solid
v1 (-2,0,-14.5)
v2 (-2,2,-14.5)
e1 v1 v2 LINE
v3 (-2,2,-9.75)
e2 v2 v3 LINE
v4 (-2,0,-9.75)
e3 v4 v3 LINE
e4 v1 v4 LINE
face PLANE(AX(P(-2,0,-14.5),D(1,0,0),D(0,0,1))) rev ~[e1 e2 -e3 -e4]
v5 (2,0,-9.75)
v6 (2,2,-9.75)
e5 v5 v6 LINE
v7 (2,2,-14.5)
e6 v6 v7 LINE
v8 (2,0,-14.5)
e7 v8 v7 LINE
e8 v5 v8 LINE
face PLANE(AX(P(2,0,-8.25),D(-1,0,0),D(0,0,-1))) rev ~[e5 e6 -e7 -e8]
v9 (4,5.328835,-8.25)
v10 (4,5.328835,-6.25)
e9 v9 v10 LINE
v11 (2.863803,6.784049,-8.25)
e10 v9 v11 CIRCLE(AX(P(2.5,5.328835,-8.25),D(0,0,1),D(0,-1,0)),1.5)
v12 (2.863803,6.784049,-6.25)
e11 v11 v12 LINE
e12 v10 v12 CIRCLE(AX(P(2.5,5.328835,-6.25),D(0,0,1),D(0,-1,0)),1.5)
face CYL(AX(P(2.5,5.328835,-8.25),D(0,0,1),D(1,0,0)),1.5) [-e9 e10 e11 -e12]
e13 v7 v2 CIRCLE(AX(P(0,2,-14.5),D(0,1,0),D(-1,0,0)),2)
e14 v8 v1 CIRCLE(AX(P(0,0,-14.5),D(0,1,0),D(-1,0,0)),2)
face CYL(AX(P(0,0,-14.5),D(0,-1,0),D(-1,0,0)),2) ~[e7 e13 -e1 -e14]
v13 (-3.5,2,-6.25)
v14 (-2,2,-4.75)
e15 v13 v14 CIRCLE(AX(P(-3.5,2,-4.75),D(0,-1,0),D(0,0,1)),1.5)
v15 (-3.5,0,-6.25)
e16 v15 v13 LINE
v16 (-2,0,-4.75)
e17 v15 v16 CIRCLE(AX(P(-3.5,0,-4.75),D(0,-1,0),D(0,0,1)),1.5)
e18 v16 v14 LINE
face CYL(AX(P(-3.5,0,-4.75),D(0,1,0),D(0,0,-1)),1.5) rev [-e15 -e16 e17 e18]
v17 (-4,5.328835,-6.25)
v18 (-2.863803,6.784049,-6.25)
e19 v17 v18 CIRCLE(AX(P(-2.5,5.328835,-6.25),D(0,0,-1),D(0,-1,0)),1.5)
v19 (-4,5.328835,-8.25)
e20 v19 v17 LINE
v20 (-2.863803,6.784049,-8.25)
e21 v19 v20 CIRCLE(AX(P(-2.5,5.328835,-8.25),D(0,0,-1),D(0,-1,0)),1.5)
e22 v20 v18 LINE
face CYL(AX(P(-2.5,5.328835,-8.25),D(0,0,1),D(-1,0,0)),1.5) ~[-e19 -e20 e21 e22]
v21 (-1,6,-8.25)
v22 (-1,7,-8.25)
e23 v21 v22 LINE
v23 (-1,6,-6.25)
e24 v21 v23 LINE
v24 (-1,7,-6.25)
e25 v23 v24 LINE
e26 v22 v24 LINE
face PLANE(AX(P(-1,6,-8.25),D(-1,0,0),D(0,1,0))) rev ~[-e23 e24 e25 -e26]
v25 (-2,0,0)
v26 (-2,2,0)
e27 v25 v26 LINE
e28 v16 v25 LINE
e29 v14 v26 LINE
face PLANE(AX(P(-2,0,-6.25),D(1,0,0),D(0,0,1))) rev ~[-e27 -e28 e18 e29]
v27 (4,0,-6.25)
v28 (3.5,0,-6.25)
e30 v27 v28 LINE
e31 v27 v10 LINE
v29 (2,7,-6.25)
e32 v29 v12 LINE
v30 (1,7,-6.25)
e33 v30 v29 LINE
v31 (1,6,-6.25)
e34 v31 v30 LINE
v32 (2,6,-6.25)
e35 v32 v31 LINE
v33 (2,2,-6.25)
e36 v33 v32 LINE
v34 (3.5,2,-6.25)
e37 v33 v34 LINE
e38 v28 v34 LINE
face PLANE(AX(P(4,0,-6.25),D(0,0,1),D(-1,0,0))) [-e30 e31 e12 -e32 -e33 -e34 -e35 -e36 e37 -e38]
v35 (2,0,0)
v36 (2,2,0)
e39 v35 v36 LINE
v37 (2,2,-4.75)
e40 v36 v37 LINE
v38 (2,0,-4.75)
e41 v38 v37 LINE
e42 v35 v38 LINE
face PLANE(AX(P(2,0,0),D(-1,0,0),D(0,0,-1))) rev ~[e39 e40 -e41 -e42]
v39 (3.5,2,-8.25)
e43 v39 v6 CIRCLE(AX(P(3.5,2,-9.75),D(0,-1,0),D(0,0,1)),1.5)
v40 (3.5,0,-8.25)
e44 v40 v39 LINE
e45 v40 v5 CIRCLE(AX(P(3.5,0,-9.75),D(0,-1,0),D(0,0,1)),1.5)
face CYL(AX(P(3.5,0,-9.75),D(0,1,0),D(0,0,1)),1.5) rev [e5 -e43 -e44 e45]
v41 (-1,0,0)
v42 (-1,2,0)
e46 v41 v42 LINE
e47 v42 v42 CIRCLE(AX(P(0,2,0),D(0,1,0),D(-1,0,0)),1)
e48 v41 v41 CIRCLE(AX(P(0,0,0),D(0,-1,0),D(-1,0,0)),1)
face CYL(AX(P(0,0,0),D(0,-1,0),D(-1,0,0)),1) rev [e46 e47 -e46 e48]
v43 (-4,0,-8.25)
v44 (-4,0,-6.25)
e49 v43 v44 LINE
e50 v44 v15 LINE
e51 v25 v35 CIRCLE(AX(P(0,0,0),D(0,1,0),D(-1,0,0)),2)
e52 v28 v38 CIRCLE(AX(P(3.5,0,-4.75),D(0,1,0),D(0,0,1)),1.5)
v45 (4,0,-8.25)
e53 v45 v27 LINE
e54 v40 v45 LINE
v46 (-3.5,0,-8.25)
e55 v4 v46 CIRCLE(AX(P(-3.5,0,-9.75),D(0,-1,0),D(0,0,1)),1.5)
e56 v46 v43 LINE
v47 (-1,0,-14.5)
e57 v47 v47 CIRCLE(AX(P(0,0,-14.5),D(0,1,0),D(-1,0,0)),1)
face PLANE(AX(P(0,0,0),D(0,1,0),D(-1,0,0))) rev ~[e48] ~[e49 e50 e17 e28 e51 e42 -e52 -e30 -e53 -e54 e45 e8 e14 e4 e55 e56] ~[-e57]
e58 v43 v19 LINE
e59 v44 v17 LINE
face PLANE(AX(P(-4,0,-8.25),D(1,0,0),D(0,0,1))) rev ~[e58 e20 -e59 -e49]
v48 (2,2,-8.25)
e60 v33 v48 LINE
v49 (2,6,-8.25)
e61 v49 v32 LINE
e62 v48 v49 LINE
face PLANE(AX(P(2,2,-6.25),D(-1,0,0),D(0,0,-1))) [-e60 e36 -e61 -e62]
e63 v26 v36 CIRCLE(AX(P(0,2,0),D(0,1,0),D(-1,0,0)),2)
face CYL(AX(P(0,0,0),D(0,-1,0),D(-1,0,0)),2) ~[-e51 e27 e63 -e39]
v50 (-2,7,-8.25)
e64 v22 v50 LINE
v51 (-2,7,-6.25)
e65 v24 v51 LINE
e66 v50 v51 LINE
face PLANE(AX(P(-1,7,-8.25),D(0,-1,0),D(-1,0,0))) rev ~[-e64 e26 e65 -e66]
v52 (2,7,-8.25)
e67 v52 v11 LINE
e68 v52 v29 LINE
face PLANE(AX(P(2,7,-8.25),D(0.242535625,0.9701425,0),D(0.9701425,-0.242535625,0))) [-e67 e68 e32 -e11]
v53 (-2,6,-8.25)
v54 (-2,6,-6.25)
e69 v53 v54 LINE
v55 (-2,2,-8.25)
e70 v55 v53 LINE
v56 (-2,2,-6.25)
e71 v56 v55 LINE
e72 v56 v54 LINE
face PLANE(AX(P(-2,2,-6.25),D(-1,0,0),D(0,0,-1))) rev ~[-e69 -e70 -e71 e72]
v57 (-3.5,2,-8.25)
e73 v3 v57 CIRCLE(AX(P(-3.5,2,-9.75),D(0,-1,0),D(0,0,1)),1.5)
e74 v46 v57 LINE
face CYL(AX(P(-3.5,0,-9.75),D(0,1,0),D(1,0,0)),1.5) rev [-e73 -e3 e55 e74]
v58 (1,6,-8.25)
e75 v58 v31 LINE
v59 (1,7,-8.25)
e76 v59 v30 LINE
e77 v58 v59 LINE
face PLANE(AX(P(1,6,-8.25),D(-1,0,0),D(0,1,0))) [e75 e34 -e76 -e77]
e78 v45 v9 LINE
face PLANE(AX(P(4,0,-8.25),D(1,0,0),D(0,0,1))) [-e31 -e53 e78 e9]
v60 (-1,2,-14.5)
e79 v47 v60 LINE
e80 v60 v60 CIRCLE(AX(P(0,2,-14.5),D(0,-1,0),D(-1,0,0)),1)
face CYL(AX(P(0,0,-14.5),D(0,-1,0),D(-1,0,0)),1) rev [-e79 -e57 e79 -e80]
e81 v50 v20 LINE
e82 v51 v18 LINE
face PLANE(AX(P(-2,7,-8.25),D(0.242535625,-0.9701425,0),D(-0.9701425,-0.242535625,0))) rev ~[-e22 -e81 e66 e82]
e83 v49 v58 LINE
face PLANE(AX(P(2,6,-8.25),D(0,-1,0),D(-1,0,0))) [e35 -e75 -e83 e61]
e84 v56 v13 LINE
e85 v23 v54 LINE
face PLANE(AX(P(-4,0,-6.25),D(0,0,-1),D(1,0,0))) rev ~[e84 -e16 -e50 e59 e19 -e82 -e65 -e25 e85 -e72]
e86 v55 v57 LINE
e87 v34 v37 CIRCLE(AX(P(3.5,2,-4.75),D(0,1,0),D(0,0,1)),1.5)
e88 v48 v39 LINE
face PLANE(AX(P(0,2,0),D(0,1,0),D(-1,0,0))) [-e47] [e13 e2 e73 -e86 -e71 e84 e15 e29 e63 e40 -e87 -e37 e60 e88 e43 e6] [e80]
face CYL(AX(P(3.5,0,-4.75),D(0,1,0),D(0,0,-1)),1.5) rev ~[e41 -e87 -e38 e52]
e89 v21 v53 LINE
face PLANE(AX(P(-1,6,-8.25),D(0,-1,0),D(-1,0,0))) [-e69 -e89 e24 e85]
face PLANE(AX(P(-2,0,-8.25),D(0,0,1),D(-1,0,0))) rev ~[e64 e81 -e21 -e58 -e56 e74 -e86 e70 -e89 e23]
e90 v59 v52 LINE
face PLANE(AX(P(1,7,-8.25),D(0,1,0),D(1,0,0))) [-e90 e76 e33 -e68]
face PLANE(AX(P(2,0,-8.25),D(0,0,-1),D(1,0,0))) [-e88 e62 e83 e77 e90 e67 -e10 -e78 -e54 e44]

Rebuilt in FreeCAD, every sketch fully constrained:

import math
import FreeCAD as App
import Part
import Sketcher

V = App.Vector


def edges_at(feature, points):
    """Names of the edges that pass closest to the given points."""
    edges = feature.Shape.Edges
    near = lambda p: min(range(len(edges)), key=lambda i: edges[i].distToShape(Part.Vertex(*p))[0])
    return sorted({f"Edge{near(p) + 1}" for p in points})

doc = App.newDocument("Part")
body = doc.addObject("PartDesign::Body", "Body")

sketch1 = body.newObject("Sketcher::SketchObject", "Sketch")
sketch1.AttachmentSupport = (doc.getObject("XZ_Plane"), [""])
sketch1.MapMode = "FlatFace"
sketch1.addGeometry(Part.ArcOfCircle(Part.Circle(V(0, 0, 0), V(0, 0, 1), 2), math.radians(0), math.radians(180)), False)
sketch1.addGeometry(Part.LineSegment(V(2, 0, 0), V(2, -6.25, 0)), False)
sketch1.addGeometry(Part.LineSegment(V(2, -6.25, 0), V(4, -6.25, 0)), False)
sketch1.addGeometry(Part.LineSegment(V(4, -6.25, 0), V(4, -8.25, 0)), False)
sketch1.addGeometry(Part.LineSegment(V(4, -8.25, 0), V(2, -8.25, 0)), False)
sketch1.addGeometry(Part.LineSegment(V(2, -8.25, 0), V(2, -14.5, 0)), False)
sketch1.addGeometry(Part.ArcOfCircle(Part.Circle(V(0, -14.5, 0), V(0, 0, 1), 2), math.radians(180), math.radians(360)), False)
sketch1.addGeometry(Part.LineSegment(V(-2, -14.5, 0), V(-2, -8.25, 0)), False)
sketch1.addGeometry(Part.LineSegment(V(-2, -8.25, 0), V(-4, -8.25, 0)), False)
sketch1.addGeometry(Part.LineSegment(V(-4, -8.25, 0), V(-4, -6.25, 0)), False)
sketch1.addGeometry(Part.LineSegment(V(-4, -6.25, 0), V(-2, -6.25, 0)), False)
sketch1.addGeometry(Part.LineSegment(V(-2, -6.25, 0), V(-2, 0, 0)), False)
sketch1.addGeometry(Part.Circle(V(0, 0, 0), V(0, 0, 1), 1), False)
sketch1.addGeometry(Part.Circle(V(0, -14.5, 0), V(0, 0, 1), 1), False)
sketch1.addConstraint(Sketcher.Constraint("Tangent", 0, 1, 1, 1))
sketch1.addConstraint(Sketcher.Constraint("Coincident", 1, 2, 2, 1))
sketch1.addConstraint(Sketcher.Constraint("Coincident", 2, 2, 3, 1))
sketch1.addConstraint(Sketcher.Constraint("Coincident", 3, 2, 4, 1))
sketch1.addConstraint(Sketcher.Constraint("Coincident", 4, 2, 5, 1))
sketch1.addConstraint(Sketcher.Constraint("Tangent", 5, 2, 6, 2))
sketch1.addConstraint(Sketcher.Constraint("Tangent", 6, 1, 7, 1))
sketch1.addConstraint(Sketcher.Constraint("Coincident", 7, 2, 8, 1))
sketch1.addConstraint(Sketcher.Constraint("Coincident", 8, 2, 9, 1))
sketch1.addConstraint(Sketcher.Constraint("Coincident", 9, 2, 10, 1))
sketch1.addConstraint(Sketcher.Constraint("Coincident", 10, 2, 11, 1))
sketch1.addConstraint(Sketcher.Constraint("Tangent", 11, 2, 0, 2))
sketch1.addConstraint(Sketcher.Constraint("Vertical", 1))
sketch1.addConstraint(Sketcher.Constraint("Horizontal", 2))
sketch1.addConstraint(Sketcher.Constraint("Vertical", 3))
sketch1.addConstraint(Sketcher.Constraint("Horizontal", 4))
sketch1.addConstraint(Sketcher.Constraint("Vertical", 5))
sketch1.addConstraint(Sketcher.Constraint("Vertical", 7))
sketch1.addConstraint(Sketcher.Constraint("Horizontal", 8))
sketch1.addConstraint(Sketcher.Constraint("Vertical", 9))
sketch1.addConstraint(Sketcher.Constraint("Horizontal", 10))
sketch1.addConstraint(Sketcher.Constraint("Vertical", 11))
sketch1.addConstraint(Sketcher.Constraint("Coincident", 0, 3, -1, 1))
sketch1.addConstraint(Sketcher.Constraint("Coincident", 12, 3, -1, 1))
sketch1.addConstraint(Sketcher.Constraint("Coincident", 13, 3, 6, 3))
sketch1.addConstraint(Sketcher.Constraint("Equal", 0, 6))
sketch1.addConstraint(Sketcher.Constraint("Equal", 12, 13))
sketch1.addConstraint(Sketcher.Constraint("Symmetric", 4, 2, 7, 2, -2))
sketch1.addConstraint(Sketcher.Constraint("Symmetric", 2, 2, 9, 2, -2))
sketch1.addConstraint(Sketcher.Constraint("Equal", 10, 3))
sketch1.addConstraint(Sketcher.Constraint("Equal", 1, 5))
sketch1.addConstraint(Sketcher.Constraint("Diameter", 12, 2.0))
sketch1.addConstraint(Sketcher.Constraint("Radius", 0, 2.0))
sketch1.addConstraint(Sketcher.Constraint("DistanceX", 2, 1, 2, 2, 2.0))
sketch1.addConstraint(Sketcher.Constraint("DistanceY", 6, 3, -1, 1, 14.5))
pad1 = body.newObject("PartDesign::Pad", "Pad")
pad1.Profile = sketch1
pad1.Length = 2
pad1.Reversed = True

sketch2 = body.newObject("Sketcher::SketchObject", "Sketch001")
sketch2.AttachmentSupport = (doc.getObject("XZ_Plane"), [""])
sketch2.MapMode = "FlatFace"
sketch2.AttachmentOffset = App.Placement(V(0, 0, -2), App.Rotation())
sketch2.addGeometry(Part.LineSegment(V(-4, -8.25, 0), V(-4, -6.25, 0)), False)
sketch2.addGeometry(Part.LineSegment(V(-4, -6.25, 0), V(-2, -6.25, 0)), False)
sketch2.addGeometry(Part.LineSegment(V(-2, -6.25, 0), V(-2, -8.25, 0)), False)
sketch2.addGeometry(Part.LineSegment(V(-2, -8.25, 0), V(-4, -8.25, 0)), False)
sketch2.addGeometry(Part.LineSegment(V(4, -8.25, 0), V(2, -8.25, 0)), False)
sketch2.addGeometry(Part.LineSegment(V(2, -8.25, 0), V(2, -6.25, 0)), False)
sketch2.addGeometry(Part.LineSegment(V(2, -6.25, 0), V(4, -6.25, 0)), False)
sketch2.addGeometry(Part.LineSegment(V(4, -6.25, 0), V(4, -8.25, 0)), False)
sketch2.addConstraint(Sketcher.Constraint("Coincident", 0, 2, 1, 1))
sketch2.addConstraint(Sketcher.Constraint("Coincident", 1, 2, 2, 1))
sketch2.addConstraint(Sketcher.Constraint("Coincident", 2, 2, 3, 1))
sketch2.addConstraint(Sketcher.Constraint("Coincident", 3, 2, 0, 1))
sketch2.addConstraint(Sketcher.Constraint("Coincident", 4, 2, 5, 1))
sketch2.addConstraint(Sketcher.Constraint("Coincident", 5, 2, 6, 1))
sketch2.addConstraint(Sketcher.Constraint("Coincident", 6, 2, 7, 1))
sketch2.addConstraint(Sketcher.Constraint("Coincident", 7, 2, 4, 1))
sketch2.addConstraint(Sketcher.Constraint("Vertical", 0))
sketch2.addConstraint(Sketcher.Constraint("Horizontal", 1))
sketch2.addConstraint(Sketcher.Constraint("Vertical", 2))
sketch2.addConstraint(Sketcher.Constraint("Horizontal", 3))
sketch2.addConstraint(Sketcher.Constraint("Horizontal", 4))
sketch2.addConstraint(Sketcher.Constraint("Vertical", 5))
sketch2.addConstraint(Sketcher.Constraint("Horizontal", 6))
sketch2.addConstraint(Sketcher.Constraint("Vertical", 7))
sketch2.addConstraint(Sketcher.Constraint("Symmetric", 2, 2, 4, 2, -2))
sketch2.addConstraint(Sketcher.Constraint("Symmetric", 0, 2, 6, 2, -2))
sketch2.addConstraint(Sketcher.Constraint("Equal", 6, 0))
sketch2.addConstraint(Sketcher.Constraint("DistanceX", 1, 1, 1, 2, 2.0))
sketch2.addConstraint(Sketcher.Constraint("DistanceX", 1, 2, -1, 1, 2.0))
sketch2.addConstraint(Sketcher.Constraint("DistanceY", 0, 2, -1, 1, 6.25))
pad2 = body.newObject("PartDesign::Pad", "Pad001")
pad2.Profile = sketch2
pad2.Length = 4.5
pad2.Reversed = True

sketch3 = body.newObject("Sketcher::SketchObject", "Sketch002")
sketch3.AttachmentSupport = (doc.getObject("XY_Plane"), [""])
sketch3.MapMode = "FlatFace"
sketch3.AttachmentOffset = App.Placement(V(0, 0, -8.25), App.Rotation())
sketch3.addGeometry(Part.LineSegment(V(-1, 7, 0), V(-1, 6, 0)), False)
sketch3.addGeometry(Part.LineSegment(V(-1, 6, 0), V(-2, 6, 0)), False)
sketch3.addGeometry(Part.LineSegment(V(-2, 6, 0), V(-2, 6.5, 0)), False)
sketch3.addGeometry(Part.LineSegment(V(-2, 6.5, 0), V(-4, 6.5, 0)), False)
sketch3.addGeometry(Part.LineSegment(V(-4, 6.5, 0), V(-2, 7, 0)), False)
sketch3.addGeometry(Part.LineSegment(V(-2, 7, 0), V(-1, 7, 0)), False)
sketch3.addGeometry(Part.LineSegment(V(1, 7, 0), V(2, 7, 0)), False)
sketch3.addGeometry(Part.LineSegment(V(2, 7, 0), V(4, 6.5, 0)), False)
sketch3.addGeometry(Part.LineSegment(V(4, 6.5, 0), V(2, 6.5, 0)), False)
sketch3.addGeometry(Part.LineSegment(V(2, 6.5, 0), V(2, 6, 0)), False)
sketch3.addGeometry(Part.LineSegment(V(2, 6, 0), V(1, 6, 0)), False)
sketch3.addGeometry(Part.LineSegment(V(1, 6, 0), V(1, 7, 0)), False)
sketch3.addConstraint(Sketcher.Constraint("Coincident", 0, 2, 1, 1))
sketch3.addConstraint(Sketcher.Constraint("Coincident", 1, 2, 2, 1))
sketch3.addConstraint(Sketcher.Constraint("Coincident", 2, 2, 3, 1))
sketch3.addConstraint(Sketcher.Constraint("Coincident", 3, 2, 4, 1))
sketch3.addConstraint(Sketcher.Constraint("Coincident", 4, 2, 5, 1))
sketch3.addConstraint(Sketcher.Constraint("Coincident", 5, 2, 0, 1))
sketch3.addConstraint(Sketcher.Constraint("Coincident", 6, 2, 7, 1))
sketch3.addConstraint(Sketcher.Constraint("Coincident", 7, 2, 8, 1))
sketch3.addConstraint(Sketcher.Constraint("Coincident", 8, 2, 9, 1))
sketch3.addConstraint(Sketcher.Constraint("Coincident", 9, 2, 10, 1))
sketch3.addConstraint(Sketcher.Constraint("Coincident", 10, 2, 11, 1))
sketch3.addConstraint(Sketcher.Constraint("Coincident", 11, 2, 6, 1))
sketch3.addConstraint(Sketcher.Constraint("Vertical", 0))
sketch3.addConstraint(Sketcher.Constraint("Horizontal", 1))
sketch3.addConstraint(Sketcher.Constraint("Vertical", 2))
sketch3.addConstraint(Sketcher.Constraint("Horizontal", 3))
sketch3.addConstraint(Sketcher.Constraint("Horizontal", 5))
sketch3.addConstraint(Sketcher.Constraint("Horizontal", 6))
sketch3.addConstraint(Sketcher.Constraint("Horizontal", 8))
sketch3.addConstraint(Sketcher.Constraint("Vertical", 9))
sketch3.addConstraint(Sketcher.Constraint("Horizontal", 10))
sketch3.addConstraint(Sketcher.Constraint("Vertical", 11))
sketch3.addConstraint(Sketcher.Constraint("Symmetric", 4, 2, 6, 2, -2))
sketch3.addConstraint(Sketcher.Constraint("Symmetric", 3, 2, 7, 2, -2))
sketch3.addConstraint(Sketcher.Constraint("Symmetric", 1, 2, 9, 2, -2))
sketch3.addConstraint(Sketcher.Constraint("Vertical", 2, 2, 4, 2))
sketch3.addConstraint(Sketcher.Constraint("Equal", 5, 6))
sketch3.addConstraint(Sketcher.Constraint("Equal", 10, 0))
sketch3.addConstraint(Sketcher.Constraint("DistanceX", 1, 2, 1, 1, 1.0))
sketch3.addConstraint(Sketcher.Constraint("DistanceY", 2, 1, 2, 2, 0.5))
sketch3.addConstraint(Sketcher.Constraint("DistanceX", 0, 2, -1, 1, 1.0))
sketch3.addConstraint(Sketcher.Constraint("DistanceX", 3, 2, -1, 1, 4.0))
sketch3.addConstraint(Sketcher.Constraint("DistanceY", -1, 1, 0, 2, 6.0))
pad3 = body.newObject("PartDesign::Pad", "Pad002")
pad3.Profile = sketch3
pad3.Length = 2
doc.recompute()

fillet = body.newObject("PartDesign::Fillet", "Fillet")
fillet.Base = (pad3, edges_at(pad3, [(4, 6.5, -7.25), (-4, 6.5, -7.25)]))
fillet.Radius = 1.5
doc.recompute()

fillet2 = body.newObject("PartDesign::Fillet", "Fillet001")
fillet2.Base = (fillet, edges_at(fillet, [
    (-2, 1, -6.25),
    (2, 1, -6.25),
    (-2, 1, -8.25),
    (2, 1, -8.25),
]))
fillet2.Radius = 1.5

doc.recompute()
